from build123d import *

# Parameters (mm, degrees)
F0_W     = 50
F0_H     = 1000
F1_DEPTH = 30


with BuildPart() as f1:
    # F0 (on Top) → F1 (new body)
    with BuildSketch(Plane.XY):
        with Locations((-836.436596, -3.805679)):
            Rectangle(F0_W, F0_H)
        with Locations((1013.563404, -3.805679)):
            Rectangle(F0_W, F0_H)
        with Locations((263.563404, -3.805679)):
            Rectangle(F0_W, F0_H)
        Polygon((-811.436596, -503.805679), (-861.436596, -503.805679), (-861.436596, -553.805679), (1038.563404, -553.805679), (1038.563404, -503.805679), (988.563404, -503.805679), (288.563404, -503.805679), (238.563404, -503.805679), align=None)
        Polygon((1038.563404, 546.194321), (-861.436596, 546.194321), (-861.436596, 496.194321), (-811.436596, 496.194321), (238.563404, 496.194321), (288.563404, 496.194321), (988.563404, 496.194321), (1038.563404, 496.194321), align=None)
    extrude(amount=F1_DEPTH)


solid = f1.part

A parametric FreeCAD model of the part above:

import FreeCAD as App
import Part
import Sketcher

V = App.Vector


def add_polygon(sketch, points):
    """Adds a closed chain of lines whose ends are joined by coincident constraints."""
    first, n = sketch.GeometryCount, len(points)
    for a, b in zip(points, points[1:] + points[:1]):
        sketch.addGeometry(Part.LineSegment(App.Vector(*a, 0), App.Vector(*b, 0)), False)
    for i in range(n):
        sketch.addConstraint(Sketcher.Constraint("Coincident", first + i, 2, first + (i + 1) % n, 1))

doc = App.newDocument("Part")
body = doc.addObject("PartDesign::Body", "Body")

# Sketch on XY plane
sketch1 = doc.addObject("Sketcher::SketchObject", "Sketch")
body.addObject(sketch1)
sketch1.AttachmentSupport = (doc.XY_Plane, [""])
sketch1.MapMode = "FlatFace"
add_polygon(sketch1, [(-861, -554), (1039, -554), (1039, 546), (-861, 546)])  # lines 0-3
add_polygon(sketch1, [(989, 496), (989, -504), (289, -504), (289, 496)])  # lines 4-7
add_polygon(sketch1, [(239, 496), (239, -504), (-811, -504), (-811, 496)])  # lines 8-11
sketch1.addConstraint(Sketcher.Constraint("Horizontal", 0))
sketch1.addConstraint(Sketcher.Constraint("Vertical", 1))
sketch1.addConstraint(Sketcher.Constraint("Horizontal", 2))
sketch1.addConstraint(Sketcher.Constraint("Vertical", 3))
sketch1.addConstraint(Sketcher.Constraint("Vertical", 4))
sketch1.addConstraint(Sketcher.Constraint("Horizontal", 5))
sketch1.addConstraint(Sketcher.Constraint("Vertical", 6))
sketch1.addConstraint(Sketcher.Constraint("Horizontal", 7))
sketch1.addConstraint(Sketcher.Constraint("Vertical", 8))
sketch1.addConstraint(Sketcher.Constraint("Horizontal", 9))
sketch1.addConstraint(Sketcher.Constraint("Vertical", 10))
sketch1.addConstraint(Sketcher.Constraint("Horizontal", 11))
sketch1.addConstraint(Sketcher.Constraint("Horizontal", 5, 2, 8, 2))
sketch1.addConstraint(Sketcher.Constraint("Horizontal", 7, 2, 10, 2))
sketch1.addConstraint(Sketcher.Constraint("DistanceX", 0, 1, 0, 2, 1900.0))
sketch1.addConstraint(Sketcher.Constraint("DistanceX", 5, 2, 5, 1, 700.0))
sketch1.addConstraint(Sketcher.Constraint("DistanceX", 9, 2, 9, 1, 1050.0))
sketch1.addConstraint(Sketcher.Constraint("DistanceY", 1, 1, 1, 2, 1100.0))
sketch1.addConstraint(Sketcher.Constraint("DistanceY", 4, 2, 4, 1, 1000.0))
sketch1.addConstraint(Sketcher.Constraint("DistanceX", 4, 2, 0, 2, 50.0))
sketch1.addConstraint(Sketcher.Constraint("DistanceY", 0, 2, 4, 2, 50.0))
sketch1.addConstraint(Sketcher.Constraint("DistanceX", 8, 2, 5, 2, 50.0))
sketch1.addConstraint(Sketcher.Constraint("DistanceY", 0, 2, -1, 1, 553.805679))
sketch1.addConstraint(Sketcher.Constraint("DistanceX", -1, 1, 0, 2, 1038.563404))
pad1 = doc.addObject("PartDesign::Pad", "Pad")
body.addObject(pad1)
pad1.Profile = sketch1
pad1.Length = 30

doc.recompute()
